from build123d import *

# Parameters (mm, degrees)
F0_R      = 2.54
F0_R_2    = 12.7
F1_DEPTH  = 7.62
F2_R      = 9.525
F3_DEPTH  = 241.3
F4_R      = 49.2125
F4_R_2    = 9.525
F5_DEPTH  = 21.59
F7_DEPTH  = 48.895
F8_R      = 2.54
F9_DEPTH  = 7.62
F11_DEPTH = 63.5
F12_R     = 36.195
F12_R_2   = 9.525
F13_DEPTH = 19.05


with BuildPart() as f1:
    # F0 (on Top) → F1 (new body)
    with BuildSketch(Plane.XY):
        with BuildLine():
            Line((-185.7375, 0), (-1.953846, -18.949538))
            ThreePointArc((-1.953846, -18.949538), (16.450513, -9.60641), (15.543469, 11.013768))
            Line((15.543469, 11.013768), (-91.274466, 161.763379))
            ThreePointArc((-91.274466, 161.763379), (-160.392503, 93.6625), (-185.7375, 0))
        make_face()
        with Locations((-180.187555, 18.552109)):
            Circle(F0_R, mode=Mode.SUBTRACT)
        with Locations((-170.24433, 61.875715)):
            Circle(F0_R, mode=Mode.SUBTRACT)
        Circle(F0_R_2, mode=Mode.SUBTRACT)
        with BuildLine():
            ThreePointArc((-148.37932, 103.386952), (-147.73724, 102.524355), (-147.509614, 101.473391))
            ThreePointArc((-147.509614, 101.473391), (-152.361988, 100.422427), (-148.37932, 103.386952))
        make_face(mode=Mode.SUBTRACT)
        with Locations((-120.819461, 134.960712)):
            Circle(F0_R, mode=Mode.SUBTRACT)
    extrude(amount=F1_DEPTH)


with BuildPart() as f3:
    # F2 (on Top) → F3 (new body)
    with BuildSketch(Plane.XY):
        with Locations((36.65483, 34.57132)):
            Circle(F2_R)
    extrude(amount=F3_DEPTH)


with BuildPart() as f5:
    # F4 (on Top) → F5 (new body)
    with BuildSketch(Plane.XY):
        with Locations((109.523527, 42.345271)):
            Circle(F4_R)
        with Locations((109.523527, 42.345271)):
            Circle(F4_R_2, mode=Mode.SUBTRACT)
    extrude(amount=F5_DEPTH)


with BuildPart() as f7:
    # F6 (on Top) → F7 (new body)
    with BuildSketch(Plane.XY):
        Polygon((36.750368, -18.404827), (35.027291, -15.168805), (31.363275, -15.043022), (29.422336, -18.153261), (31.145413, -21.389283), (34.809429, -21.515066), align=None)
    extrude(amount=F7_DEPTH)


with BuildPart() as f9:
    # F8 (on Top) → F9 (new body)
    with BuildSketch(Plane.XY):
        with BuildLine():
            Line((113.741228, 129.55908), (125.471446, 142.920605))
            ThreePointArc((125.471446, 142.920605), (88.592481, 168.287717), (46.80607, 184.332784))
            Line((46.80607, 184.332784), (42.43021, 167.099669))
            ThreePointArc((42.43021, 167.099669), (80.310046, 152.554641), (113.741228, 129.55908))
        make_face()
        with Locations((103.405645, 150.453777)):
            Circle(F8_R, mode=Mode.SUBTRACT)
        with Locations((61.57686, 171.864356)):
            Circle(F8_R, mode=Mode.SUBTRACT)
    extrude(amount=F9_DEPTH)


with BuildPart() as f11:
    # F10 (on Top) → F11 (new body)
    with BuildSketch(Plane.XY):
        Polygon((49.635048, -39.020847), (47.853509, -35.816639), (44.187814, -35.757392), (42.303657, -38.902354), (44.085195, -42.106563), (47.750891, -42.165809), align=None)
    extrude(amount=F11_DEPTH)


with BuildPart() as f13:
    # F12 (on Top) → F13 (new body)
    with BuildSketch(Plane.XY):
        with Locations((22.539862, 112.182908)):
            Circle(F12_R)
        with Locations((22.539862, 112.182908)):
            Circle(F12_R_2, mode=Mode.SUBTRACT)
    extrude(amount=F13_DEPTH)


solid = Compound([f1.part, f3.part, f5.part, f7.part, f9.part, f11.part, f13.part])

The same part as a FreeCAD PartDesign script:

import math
import FreeCAD as App
import Part
import Sketcher
Q = App.Units.Quantity

doc = App.newDocument("Part")
body = doc.addObject("PartDesign::Body", "Body")

# Sketch on XY plane
sketch1 = body.newObject("Sketcher::SketchObject", "Sketch")
sketch1.AttachmentSupport = (doc.getObject("XY_Plane"), [""])
sketch1.MapMode = "FlatFace"
sketch1.addGeometry(Part.LineSegment(App.Vector(-185.7, 0, 0), App.Vector(-2, -18.9, 0)), False)
sketch1.addGeometry(Part.ArcOfCircle(Part.Circle(App.Vector(0, 0, 0), App.Vector(0, 0, 1), 19.1), math.radians(-96), math.radians(35)), False)
sketch1.addGeometry(Part.LineSegment(App.Vector(15.5, 11, 0), App.Vector(-91.3, 161.8, 0)), False)
sketch1.addGeometry(Part.ArcOfCircle(Part.Circle(App.Vector(0, 0, 0), App.Vector(0, 0, 1), 185.7), math.radians(119), math.radians(180)), False)
sketch1.addGeometry(Part.Circle(App.Vector(-180.2, 18.6, 0), App.Vector(0, 0, 1), 2.5), False)
sketch1.addGeometry(Part.Circle(App.Vector(-170.2, 61.9, 0), App.Vector(0, 0, 1), 2.5), False)
sketch1.addGeometry(Part.Circle(App.Vector(0, 0, 0), App.Vector(0, 0, 1), 12.7), False)
sketch1.addGeometry(Part.ArcOfCircle(Part.Circle(App.Vector(-150, 101.5, 0), App.Vector(0, 0, 1), 2.5), math.radians(49), math.radians(360)), False)
sketch1.addGeometry(Part.ArcOfCircle(Part.Circle(App.Vector(-150, 101.5, 0), App.Vector(0, 0, 1), 2.5), math.radians(0), math.radians(49)), False)
sketch1.addGeometry(Part.Circle(App.Vector(-120.8, 135, 0), App.Vector(0, 0, 1), 2.5), False)
sketch1.addConstraint(Sketcher.Constraint("Tangent", 0, 2, 1, 1))
sketch1.addConstraint(Sketcher.Constraint("Tangent", 1, 2, 2, 1))
sketch1.addConstraint(Sketcher.Constraint("Coincident", 2, 2, 3, 1))
sketch1.addConstraint(Sketcher.Constraint("Coincident", 3, 2, 0, 1))
sketch1.addConstraint(Sketcher.Constraint("Tangent", 7, 1, 8, 2))
sketch1.addConstraint(Sketcher.Constraint("Coincident", 8, 1, 7, 2))
sketch1.addConstraint(Sketcher.Constraint("Coincident", 1, 3, -1, 1))
sketch1.addConstraint(Sketcher.Constraint("Coincident", 3, 3, -1, 1))
sketch1.addConstraint(Sketcher.Constraint("Coincident", 6, 3, -1, 1))
sketch1.addConstraint(Sketcher.Constraint("Equal", 4, 5))
sketch1.addConstraint(Sketcher.Constraint("Equal", 5, 7))
sketch1.addConstraint(Sketcher.Constraint("Equal", 8, 9))
sketch1.addConstraint(Sketcher.Constraint("PointOnObject", 3, 2, -1))
sketch1.addConstraint(Sketcher.Constraint("Horizontal", 7, 3, 8, 1))
sketch1.addConstraint(Sketcher.Constraint("Diameter", 6, Q("1 in")))
sketch1.addConstraint(Sketcher.Constraint("Diameter", 4, Q("0.2 in")))
sketch1.addConstraint(Sketcher.Constraint("Radius", 1, Q("0.75 in")))
sketch1.addConstraint(Sketcher.Constraint("Radius", 3, Q("7.3125 in")))
sketch1.addConstraint(Sketcher.Constraint("DistanceY", -1, 1, 4, 3, 18.552109))
sketch1.addConstraint(Sketcher.Constraint("DistanceX", 5, 3, -1, 1, 170.24433))
sketch1.addConstraint(Sketcher.Constraint("DistanceY", -1, 1, 7, 3, 101.473391))
sketch1.addConstraint(Sketcher.Constraint("DistanceX", 9, 3, -1, 1, 120.819461))
sketch1.addConstraint(Sketcher.Constraint("DistanceY", -1, 1, 9, 3, 134.960712))
sketch1.addConstraint(Sketcher.Constraint("DistanceX", -1, 1, 1, 2, 15.543469))
sketch1.addConstraint(Sketcher.Constraint("DistanceX", 7, 1, -1, 1, 148.37932))
sketch1.addConstraint(Sketcher.Constraint("DistanceY", -1, 1, 7, 1, 103.386952))
sketch1.addConstraint(Sketcher.Constraint("DistanceX", 4, 3, 7, 3, 30.137941))
sketch1.addConstraint(Sketcher.Constraint("DistanceY", -1, 1, 5, 3, 61.875715))
pad1 = body.newObject("PartDesign::Pad", "Pad")
pad1.Profile = sketch1
pad1.Length = Q("0.3 in")
body2 = doc.addObject("PartDesign::Body", "Body001")

# Sketch on XY plane
sketch2 = body2.newObject("Sketcher::SketchObject", "Sketch001")
sketch2.AttachmentSupport = (doc.getObject("XY_Plane001"), [""])
sketch2.MapMode = "FlatFace"
sketch2.addGeometry(Part.Circle(App.Vector(37, 35, 0), App.Vector(0, 0, 1), 10), False)
sketch2.addConstraint(Sketcher.Constraint("Diameter", 0, Q("0.75 in")))
sketch2.addConstraint(Sketcher.Constraint("DistanceX", -1, 1, 0, 3, 36.65483))
sketch2.addConstraint(Sketcher.Constraint("DistanceY", -1, 1, 0, 3, 34.57132))
pad2 = body2.newObject("PartDesign::Pad", "Pad001")
pad2.Profile = sketch2
pad2.Length = Q("9.5 in")
body3 = doc.addObject("PartDesign::Body", "Body002")

# Sketch on XY plane
sketch3 = body3.newObject("Sketcher::SketchObject", "Sketch002")
sketch3.AttachmentSupport = (doc.getObject("XY_Plane002"), [""])
sketch3.MapMode = "FlatFace"
sketch3.addGeometry(Part.Circle(App.Vector(110, 42, 0), App.Vector(0, 0, 1), 49), False)
sketch3.addGeometry(Part.Circle(App.Vector(110, 42, 0), App.Vector(0, 0, 1), 10), False)
sketch3.addConstraint(Sketcher.Constraint("Coincident", 1, 3, 0, 3))
sketch3.addConstraint(Sketcher.Constraint("Diameter", 1, Q("0.75 in")))
sketch3.addConstraint(Sketcher.Constraint("Diameter", 0, Q("3.875 in")))
sketch3.addConstraint(Sketcher.Constraint("DistanceY", -1, 1, 0, 3, 42.345271))
sketch3.addConstraint(Sketcher.Constraint("DistanceX", -1, 1, 0, 3, 109.523527))
pad3 = body3.newObject("PartDesign::Pad", "Pad002")
pad3.Profile = sketch3
pad3.Length = Q("0.85 in")
body4 = doc.addObject("PartDesign::Body", "Body003")

# Sketch on XY plane
sketch4 = body4.newObject("Sketcher::SketchObject", "Sketch003")
sketch4.AttachmentSupport = (doc.getObject("XY_Plane003"), [""])
sketch4.MapMode = "FlatFace"
sketch4.addGeometry(Part.LineSegment(App.Vector(36.8, -18.4, 0), App.Vector(35, -15.2, 0)), False)
sketch4.addGeometry(Part.LineSegment(App.Vector(35, -15.2, 0), App.Vector(31.4, -15, 0)), False)
sketch4.addGeometry(Part.LineSegment(App.Vector(31.4, -15, 0), App.Vector(29.4, -18.2, 0)), False)
sketch4.addGeometry(Part.LineSegment(App.Vector(29.4, -18.2, 0), App.Vector(31.1, -21.4, 0)), False)
sketch4.addGeometry(Part.LineSegment(App.Vector(31.1, -21.4, 0), App.Vector(34.8, -21.5, 0)), False)
sketch4.addGeometry(Part.LineSegment(App.Vector(34.8, -21.5, 0), App.Vector(36.8, -18.4, 0)), False)
sketch4.addConstraint(Sketcher.Constraint("Coincident", 0, 2, 1, 1))
sketch4.addConstraint(Sketcher.Constraint("Coincident", 1, 2, 2, 1))
sketch4.addConstraint(Sketcher.Constraint("Coincident", 2, 2, 3, 1))
sketch4.addConstraint(Sketcher.Constraint("Coincident", 3, 2, 4, 1))
sketch4.addConstraint(Sketcher.Constraint("Coincident", 4, 2, 5, 1))
sketch4.addConstraint(Sketcher.Constraint("Coincident", 5, 2, 0, 1))
sketch4.addConstraint(Sketcher.Constraint("Parallel", 0, 3))
sketch4.addConstraint(Sketcher.Constraint("Parallel", 1, 4))
sketch4.addConstraint(Sketcher.Constraint("Parallel", 2, 5))
sketch4.addConstraint(Sketcher.Constraint("Equal", 0, 1))
sketch4.addConstraint(Sketcher.Constraint("Equal", 1, 2))
sketch4.addConstraint(Sketcher.Constraint("Equal", 2, 3))
sketch4.addConstraint(Sketcher.Constraint("DistanceX", -1, 1, 0, 2, 35.027291))
sketch4.addConstraint(Sketcher.Constraint("DistanceY", 2, 2, -1, 1, 18.153261))
sketch4.addConstraint(Sketcher.Constraint("DistanceX", -1, 1, 4, 2, 34.809429))
sketch4.addConstraint(Sketcher.Constraint("DistanceX", -1, 1, 5, 2, 36.750368))
sketch4.addConstraint(Sketcher.Constraint("DistanceY", 2, 2, 1, 2, 3.110239))
sketch4.addConstraint(Sketcher.Constraint("DistanceY", 0, 2, -1, 1, 15.168805))
pad4 = body4.newObject("PartDesign::Pad", "Pad003")
pad4.Profile = sketch4
pad4.Length = Q("1.925 in")
body5 = doc.addObject("PartDesign::Body", "Body004")

# Sketch on XY plane
sketch5 = body5.newObject("Sketcher::SketchObject", "Sketch004")
sketch5.AttachmentSupport = (doc.getObject("XY_Plane004"), [""])
sketch5.MapMode = "FlatFace"
sketch5.addGeometry(Part.LineSegment(App.Vector(113.7, 129.6, 0), App.Vector(125.5, 142.9, 0)), False)
sketch5.addGeometry(Part.ArcOfCircle(Part.Circle(App.Vector(0, 0, 0), App.Vector(0, 0, 1), 190.2), math.radians(49), math.radians(76)), False)
sketch5.addGeometry(Part.LineSegment(App.Vector(46.8, 184.3, 0), App.Vector(42.4, 167.1, 0)), False)
sketch5.addGeometry(Part.ArcOfCircle(Part.Circle(App.Vector(0, 0, 0), App.Vector(0, 0, 1), 172.4), math.radians(49), math.radians(76)), False)
sketch5.addGeometry(Part.Circle(App.Vector(103.4, 150.5, 0), App.Vector(0, 0, 1), 2.5), False)
sketch5.addGeometry(Part.Circle(App.Vector(61.6, 171.9, 0), App.Vector(0, 0, 1), 2.5), False)
sketch5.addConstraint(Sketcher.Constraint("Coincident", 0, 2, 1, 1))
sketch5.addConstraint(Sketcher.Constraint("Coincident", 1, 2, 2, 1))
sketch5.addConstraint(Sketcher.Constraint("Coincident", 2, 2, 3, 2))
sketch5.addConstraint(Sketcher.Constraint("Coincident", 3, 1, 0, 1))
sketch5.addConstraint(Sketcher.Constraint("Equal", 4, 5))
sketch5.addConstraint(Sketcher.Constraint("Symmetric", 1, 3, 3, 3, -1, 1))
sketch5.addConstraint(Sketcher.Constraint("Equal", 0, 2))
sketch5.addConstraint(Sketcher.Constraint("Diameter", 4, Q("0.2 in")))
sketch5.addConstraint(Sketcher.Constraint("Distance", 0, Q("0.7 in")))
sketch5.addConstraint(Sketcher.Constraint("Radius", 1, 190.18249))
sketch5.addConstraint(Sketcher.Constraint("Radius", 3, 172.402516))
sketch5.addConstraint(Sketcher.Constraint("DistanceX", 4, 3, 0, 2, 22.065801))
sketch5.addConstraint(Sketcher.Constraint("DistanceY", 3, 3, 1, 2, 184.332798))
sketch5.addConstraint(Sketcher.Constraint("DistanceX", -1, 1, 5, 3, 61.57686))
sketch5.addConstraint(Sketcher.Constraint("DistanceX", -1, 1, 2, 2, 42.43021))
sketch5.addConstraint(Sketcher.Constraint("DistanceY", -1, 1, 3, 1, 129.55908))
sketch5.addConstraint(Sketcher.Constraint("DistanceX", 1, 3, 4, 3, 103.405642))
sketch5.addConstraint(Sketcher.Constraint("DistanceY", 3, 3, 4, 3, 150.453791))
sketch5.addConstraint(Sketcher.Constraint("DistanceY", 4, 3, 5, 3, 21.410579))
pad5 = body5.newObject("PartDesign::Pad", "Pad004")
pad5.Profile = sketch5
pad5.Length = Q("0.3 in")
body6 = doc.addObject("PartDesign::Body", "Body005")

# Sketch on XY plane
sketch6 = body6.newObject("Sketcher::SketchObject", "Sketch005")
sketch6.AttachmentSupport = (doc.getObject("XY_Plane005"), [""])
sketch6.MapMode = "FlatFace"
sketch6.addGeometry(Part.LineSegment(App.Vector(49.635048, -39.020847, 0), App.Vector(47.853509, -35.816639, 0)), False)
sketch6.addGeometry(Part.LineSegment(App.Vector(47.853509, -35.816639, 0), App.Vector(44.187814, -35.757392, 0)), False)
sketch6.addGeometry(Part.LineSegment(App.Vector(44.187814, -35.757392, 0), App.Vector(42.303657, -38.902354, 0)), False)
sketch6.addGeometry(Part.LineSegment(App.Vector(42.303657, -38.902354, 0), App.Vector(44.085195, -42.106563, 0)), False)
sketch6.addGeometry(Part.LineSegment(App.Vector(44.085195, -42.106563, 0), App.Vector(47.750891, -42.165809, 0)), False)
sketch6.addGeometry(Part.LineSegment(App.Vector(47.750891, -42.165809, 0), App.Vector(49.635048, -39.020847, 0)), False)
sketch6.addConstraint(Sketcher.Constraint("Coincident", 0, 2, 1, 1))
sketch6.addConstraint(Sketcher.Constraint("Coincident", 1, 2, 2, 1))
sketch6.addConstraint(Sketcher.Constraint("Coincident", 2, 2, 3, 1))
sketch6.addConstraint(Sketcher.Constraint("Coincident", 3, 2, 4, 1))
sketch6.addConstraint(Sketcher.Constraint("Coincident", 4, 2, 5, 1))
sketch6.addConstraint(Sketcher.Constraint("Coincident", 5, 2, 0, 1))
sketch6.addConstraint(Sketcher.Constraint("Parallel", 0, 3))
sketch6.addConstraint(Sketcher.Constraint("Parallel", 1, 4))
sketch6.addConstraint(Sketcher.Constraint("Parallel", 2, 5))
sketch6.addConstraint(Sketcher.Constraint("Equal", 0, 1))
sketch6.addConstraint(Sketcher.Constraint("Equal", 1, 2))
sketch6.addConstraint(Sketcher.Constraint("Equal", 2, 3))
sketch6.addConstraint(Sketcher.Constraint("DistanceY", 4, 2, 1, 2, Q("0.2522999 in")))
sketch6.addConstraint(Sketcher.Constraint("DistanceX", -1, 1, 0, 2, 47.853509))
sketch6.addConstraint(Sketcher.Constraint("DistanceY", 0, 2, -1, 1, 35.816639))
sketch6.addConstraint(Sketcher.Constraint("DistanceX", -1, 1, 4, 2, 47.750891))
sketch6.addConstraint(Sketcher.Constraint("DistanceY", 4, 2, -1, 1, 42.165809))
sketch6.addConstraint(Sketcher.Constraint("DistanceY", 2, 2, 1, 2, 3.144962))
pad6 = body6.newObject("PartDesign::Pad", "Pad005")
pad6.Profile = sketch6
pad6.Length = Q("2.5 in")
body7 = doc.addObject("PartDesign::Body", "Body006")

# Sketch on XY plane
sketch7 = body7.newObject("Sketcher::SketchObject", "Sketch006")
sketch7.AttachmentSupport = (doc.getObject("XY_Plane006"), [""])
sketch7.MapMode = "FlatFace"
sketch7.addGeometry(Part.Circle(App.Vector(23, 112, 0), App.Vector(0, 0, 1), 36), False)
sketch7.addGeometry(Part.Circle(App.Vector(23, 112, 0), App.Vector(0, 0, 1), 10), False)
sketch7.addConstraint(Sketcher.Constraint("Coincident", 1, 3, 0, 3))
sketch7.addConstraint(Sketcher.Constraint("Diameter", 0, Q("2.85 in")))
sketch7.addConstraint(Sketcher.Constraint("Diameter", 1, Q("0.75 in")))
sketch7.addConstraint(Sketcher.Constraint("DistanceX", -1, 1, 0, 3, 22.539862))
sketch7.addConstraint(Sketcher.Constraint("DistanceY", -1, 1, 0, 3, 112.182908))
pad7 = body7.newObject("PartDesign::Pad", "Pad006")
pad7.Profile = sketch7
pad7.Length = Q("0.75 in")

doc.recompute()
